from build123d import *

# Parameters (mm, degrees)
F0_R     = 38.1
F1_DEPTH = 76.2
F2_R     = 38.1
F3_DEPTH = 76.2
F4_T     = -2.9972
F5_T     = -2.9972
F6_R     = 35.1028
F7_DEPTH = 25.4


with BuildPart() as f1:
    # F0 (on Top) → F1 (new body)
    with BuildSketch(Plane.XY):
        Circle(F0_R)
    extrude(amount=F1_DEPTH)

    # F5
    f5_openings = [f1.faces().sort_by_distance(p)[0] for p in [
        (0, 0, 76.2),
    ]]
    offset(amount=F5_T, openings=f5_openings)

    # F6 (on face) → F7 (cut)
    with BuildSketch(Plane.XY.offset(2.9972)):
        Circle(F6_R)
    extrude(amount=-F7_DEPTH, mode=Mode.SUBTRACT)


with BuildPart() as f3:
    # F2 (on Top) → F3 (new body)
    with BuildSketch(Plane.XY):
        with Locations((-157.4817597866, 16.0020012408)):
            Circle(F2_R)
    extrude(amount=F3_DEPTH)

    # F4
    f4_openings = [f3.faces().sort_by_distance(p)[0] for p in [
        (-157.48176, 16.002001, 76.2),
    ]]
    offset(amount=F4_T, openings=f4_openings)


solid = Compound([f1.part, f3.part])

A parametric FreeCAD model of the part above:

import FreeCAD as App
import Part
import Sketcher
from FreeCAD import Vector
Q = App.Units.Quantity


def faces_at(feature, points):
    """Names of the faces that lie closest to the given points."""
    faces = feature.Shape.Faces
    near = lambda p: min(range(len(faces)), key=lambda i: faces[i].distToShape(Part.Vertex(*p))[0])
    return sorted({f"Face{near(p) + 1}" for p in points})

doc = App.newDocument("Part")
params = doc.addObject("Spreadsheet::Sheet", "Params")
for row, (alias, value) in enumerate([
    ("sketch1_diameter", "3 in"),
    ("pad1_length", "3 in"),
    ("thickness_wall", "0.118 in"),
    ("sketch2_diameter", "2.764 in"),
    ("pocket1_length", "1 in"),
    ("sketch3_diameter", "3 in"),
    ("pad2_length", "3 in"),
    ("thickness2_wall", "0.118 in"),
], start=1):
    params.set(f"A{row}", alias)
    params.set(f"B{row}", "=" + value)
    params.setAlias(f"B{row}", alias)

body = doc.addObject("PartDesign::Body", "Body")

sketch1 = doc.addObject("Sketcher::SketchObject", "Sketch")
body.addObject(sketch1)
sketch1.AttachmentSupport = (doc.XY_Plane, [""])
sketch1.MapMode = "FlatFace"
sketch1.addGeometry(Part.Circle(Vector(0, 0, 0), Vector(0, 0, 1), 38), False)
sketch1.addConstraint(Sketcher.Constraint("Coincident", 0, 3, -1, 1))
sketch1.addConstraint(Sketcher.Constraint("Diameter", 0, Q("3 in")))
sketch1.setExpression("Constraints[1]", "Params.sketch1_diameter")
pad1 = doc.addObject("PartDesign::Pad", "Pad")
body.addObject(pad1)
pad1.Profile = sketch1
pad1.setExpression("Length", "Params.pad1_length")
doc.recompute()

thickness = doc.addObject("PartDesign::Thickness", "Thickness")
body.addObject(thickness)
thickness.Base = (pad1, faces_at(pad1, [(0, 0, 76.2)]))
thickness.setExpression("Value", "Params.thickness_wall")
thickness.Reversed = True
thickness.Join = "Arc"

sketch2 = doc.addObject("Sketcher::SketchObject", "Sketch001")
body.addObject(sketch2)
sketch2.AttachmentSupport = (doc.XY_Plane, [""])
sketch2.MapMode = "FlatFace"
sketch2.AttachmentOffset = App.Placement(Vector(0, 0, 0.118 * 25.4), App.Rotation())
sketch2.addGeometry(Part.Circle(Vector(0, 0, 0), Vector(0, 0, 1), 35), False)
sketch2.addConstraint(Sketcher.Constraint("Coincident", 0, 3, -1, 1))
sketch2.addConstraint(Sketcher.Constraint("Diameter", 0, Q("2.764 in")))
sketch2.setExpression("Constraints[1]", "Params.sketch2_diameter")
pocket1 = doc.addObject("PartDesign::Pocket", "Pocket")
body.addObject(pocket1)
pocket1.Profile = sketch2
pocket1.setExpression("Length", "Params.pocket1_length")
body2 = doc.addObject("PartDesign::Body", "Body001")

sketch3 = doc.addObject("Sketcher::SketchObject", "Sketch002")
body2.addObject(sketch3)
sketch3.AttachmentSupport = (doc.getObject("XY_Plane001"), [""])
sketch3.MapMode = "FlatFace"
sketch3.addGeometry(Part.Circle(Vector(-157, 16, 0), Vector(0, 0, 1), 38), False)
sketch3.addConstraint(Sketcher.Constraint("Diameter", 0, Q("3 in")))
sketch3.addConstraint(Sketcher.Constraint("DistanceY", -1, 1, 0, 3, Q("0.63 in")))
sketch3.addConstraint(Sketcher.Constraint("DistanceX", 0, 3, -1, 1, Q("157.48176 mm")))
sketch3.setExpression("Constraints[0]", "Params.sketch3_diameter")
pad2 = doc.addObject("PartDesign::Pad", "Pad001")
body2.addObject(pad2)
pad2.Profile = sketch3
pad2.setExpression("Length", "Params.pad2_length")
doc.recompute()

thickness2 = doc.addObject("PartDesign::Thickness", "Thickness001")
body2.addObject(thickness2)
thickness2.Base = (pad2, faces_at(pad2, [(-157.482, 16.002, 76.2)]))
thickness2.setExpression("Value", "Params.thickness2_wall")
thickness2.Reversed = True
thickness2.Join = "Arc"

doc.recompute()
